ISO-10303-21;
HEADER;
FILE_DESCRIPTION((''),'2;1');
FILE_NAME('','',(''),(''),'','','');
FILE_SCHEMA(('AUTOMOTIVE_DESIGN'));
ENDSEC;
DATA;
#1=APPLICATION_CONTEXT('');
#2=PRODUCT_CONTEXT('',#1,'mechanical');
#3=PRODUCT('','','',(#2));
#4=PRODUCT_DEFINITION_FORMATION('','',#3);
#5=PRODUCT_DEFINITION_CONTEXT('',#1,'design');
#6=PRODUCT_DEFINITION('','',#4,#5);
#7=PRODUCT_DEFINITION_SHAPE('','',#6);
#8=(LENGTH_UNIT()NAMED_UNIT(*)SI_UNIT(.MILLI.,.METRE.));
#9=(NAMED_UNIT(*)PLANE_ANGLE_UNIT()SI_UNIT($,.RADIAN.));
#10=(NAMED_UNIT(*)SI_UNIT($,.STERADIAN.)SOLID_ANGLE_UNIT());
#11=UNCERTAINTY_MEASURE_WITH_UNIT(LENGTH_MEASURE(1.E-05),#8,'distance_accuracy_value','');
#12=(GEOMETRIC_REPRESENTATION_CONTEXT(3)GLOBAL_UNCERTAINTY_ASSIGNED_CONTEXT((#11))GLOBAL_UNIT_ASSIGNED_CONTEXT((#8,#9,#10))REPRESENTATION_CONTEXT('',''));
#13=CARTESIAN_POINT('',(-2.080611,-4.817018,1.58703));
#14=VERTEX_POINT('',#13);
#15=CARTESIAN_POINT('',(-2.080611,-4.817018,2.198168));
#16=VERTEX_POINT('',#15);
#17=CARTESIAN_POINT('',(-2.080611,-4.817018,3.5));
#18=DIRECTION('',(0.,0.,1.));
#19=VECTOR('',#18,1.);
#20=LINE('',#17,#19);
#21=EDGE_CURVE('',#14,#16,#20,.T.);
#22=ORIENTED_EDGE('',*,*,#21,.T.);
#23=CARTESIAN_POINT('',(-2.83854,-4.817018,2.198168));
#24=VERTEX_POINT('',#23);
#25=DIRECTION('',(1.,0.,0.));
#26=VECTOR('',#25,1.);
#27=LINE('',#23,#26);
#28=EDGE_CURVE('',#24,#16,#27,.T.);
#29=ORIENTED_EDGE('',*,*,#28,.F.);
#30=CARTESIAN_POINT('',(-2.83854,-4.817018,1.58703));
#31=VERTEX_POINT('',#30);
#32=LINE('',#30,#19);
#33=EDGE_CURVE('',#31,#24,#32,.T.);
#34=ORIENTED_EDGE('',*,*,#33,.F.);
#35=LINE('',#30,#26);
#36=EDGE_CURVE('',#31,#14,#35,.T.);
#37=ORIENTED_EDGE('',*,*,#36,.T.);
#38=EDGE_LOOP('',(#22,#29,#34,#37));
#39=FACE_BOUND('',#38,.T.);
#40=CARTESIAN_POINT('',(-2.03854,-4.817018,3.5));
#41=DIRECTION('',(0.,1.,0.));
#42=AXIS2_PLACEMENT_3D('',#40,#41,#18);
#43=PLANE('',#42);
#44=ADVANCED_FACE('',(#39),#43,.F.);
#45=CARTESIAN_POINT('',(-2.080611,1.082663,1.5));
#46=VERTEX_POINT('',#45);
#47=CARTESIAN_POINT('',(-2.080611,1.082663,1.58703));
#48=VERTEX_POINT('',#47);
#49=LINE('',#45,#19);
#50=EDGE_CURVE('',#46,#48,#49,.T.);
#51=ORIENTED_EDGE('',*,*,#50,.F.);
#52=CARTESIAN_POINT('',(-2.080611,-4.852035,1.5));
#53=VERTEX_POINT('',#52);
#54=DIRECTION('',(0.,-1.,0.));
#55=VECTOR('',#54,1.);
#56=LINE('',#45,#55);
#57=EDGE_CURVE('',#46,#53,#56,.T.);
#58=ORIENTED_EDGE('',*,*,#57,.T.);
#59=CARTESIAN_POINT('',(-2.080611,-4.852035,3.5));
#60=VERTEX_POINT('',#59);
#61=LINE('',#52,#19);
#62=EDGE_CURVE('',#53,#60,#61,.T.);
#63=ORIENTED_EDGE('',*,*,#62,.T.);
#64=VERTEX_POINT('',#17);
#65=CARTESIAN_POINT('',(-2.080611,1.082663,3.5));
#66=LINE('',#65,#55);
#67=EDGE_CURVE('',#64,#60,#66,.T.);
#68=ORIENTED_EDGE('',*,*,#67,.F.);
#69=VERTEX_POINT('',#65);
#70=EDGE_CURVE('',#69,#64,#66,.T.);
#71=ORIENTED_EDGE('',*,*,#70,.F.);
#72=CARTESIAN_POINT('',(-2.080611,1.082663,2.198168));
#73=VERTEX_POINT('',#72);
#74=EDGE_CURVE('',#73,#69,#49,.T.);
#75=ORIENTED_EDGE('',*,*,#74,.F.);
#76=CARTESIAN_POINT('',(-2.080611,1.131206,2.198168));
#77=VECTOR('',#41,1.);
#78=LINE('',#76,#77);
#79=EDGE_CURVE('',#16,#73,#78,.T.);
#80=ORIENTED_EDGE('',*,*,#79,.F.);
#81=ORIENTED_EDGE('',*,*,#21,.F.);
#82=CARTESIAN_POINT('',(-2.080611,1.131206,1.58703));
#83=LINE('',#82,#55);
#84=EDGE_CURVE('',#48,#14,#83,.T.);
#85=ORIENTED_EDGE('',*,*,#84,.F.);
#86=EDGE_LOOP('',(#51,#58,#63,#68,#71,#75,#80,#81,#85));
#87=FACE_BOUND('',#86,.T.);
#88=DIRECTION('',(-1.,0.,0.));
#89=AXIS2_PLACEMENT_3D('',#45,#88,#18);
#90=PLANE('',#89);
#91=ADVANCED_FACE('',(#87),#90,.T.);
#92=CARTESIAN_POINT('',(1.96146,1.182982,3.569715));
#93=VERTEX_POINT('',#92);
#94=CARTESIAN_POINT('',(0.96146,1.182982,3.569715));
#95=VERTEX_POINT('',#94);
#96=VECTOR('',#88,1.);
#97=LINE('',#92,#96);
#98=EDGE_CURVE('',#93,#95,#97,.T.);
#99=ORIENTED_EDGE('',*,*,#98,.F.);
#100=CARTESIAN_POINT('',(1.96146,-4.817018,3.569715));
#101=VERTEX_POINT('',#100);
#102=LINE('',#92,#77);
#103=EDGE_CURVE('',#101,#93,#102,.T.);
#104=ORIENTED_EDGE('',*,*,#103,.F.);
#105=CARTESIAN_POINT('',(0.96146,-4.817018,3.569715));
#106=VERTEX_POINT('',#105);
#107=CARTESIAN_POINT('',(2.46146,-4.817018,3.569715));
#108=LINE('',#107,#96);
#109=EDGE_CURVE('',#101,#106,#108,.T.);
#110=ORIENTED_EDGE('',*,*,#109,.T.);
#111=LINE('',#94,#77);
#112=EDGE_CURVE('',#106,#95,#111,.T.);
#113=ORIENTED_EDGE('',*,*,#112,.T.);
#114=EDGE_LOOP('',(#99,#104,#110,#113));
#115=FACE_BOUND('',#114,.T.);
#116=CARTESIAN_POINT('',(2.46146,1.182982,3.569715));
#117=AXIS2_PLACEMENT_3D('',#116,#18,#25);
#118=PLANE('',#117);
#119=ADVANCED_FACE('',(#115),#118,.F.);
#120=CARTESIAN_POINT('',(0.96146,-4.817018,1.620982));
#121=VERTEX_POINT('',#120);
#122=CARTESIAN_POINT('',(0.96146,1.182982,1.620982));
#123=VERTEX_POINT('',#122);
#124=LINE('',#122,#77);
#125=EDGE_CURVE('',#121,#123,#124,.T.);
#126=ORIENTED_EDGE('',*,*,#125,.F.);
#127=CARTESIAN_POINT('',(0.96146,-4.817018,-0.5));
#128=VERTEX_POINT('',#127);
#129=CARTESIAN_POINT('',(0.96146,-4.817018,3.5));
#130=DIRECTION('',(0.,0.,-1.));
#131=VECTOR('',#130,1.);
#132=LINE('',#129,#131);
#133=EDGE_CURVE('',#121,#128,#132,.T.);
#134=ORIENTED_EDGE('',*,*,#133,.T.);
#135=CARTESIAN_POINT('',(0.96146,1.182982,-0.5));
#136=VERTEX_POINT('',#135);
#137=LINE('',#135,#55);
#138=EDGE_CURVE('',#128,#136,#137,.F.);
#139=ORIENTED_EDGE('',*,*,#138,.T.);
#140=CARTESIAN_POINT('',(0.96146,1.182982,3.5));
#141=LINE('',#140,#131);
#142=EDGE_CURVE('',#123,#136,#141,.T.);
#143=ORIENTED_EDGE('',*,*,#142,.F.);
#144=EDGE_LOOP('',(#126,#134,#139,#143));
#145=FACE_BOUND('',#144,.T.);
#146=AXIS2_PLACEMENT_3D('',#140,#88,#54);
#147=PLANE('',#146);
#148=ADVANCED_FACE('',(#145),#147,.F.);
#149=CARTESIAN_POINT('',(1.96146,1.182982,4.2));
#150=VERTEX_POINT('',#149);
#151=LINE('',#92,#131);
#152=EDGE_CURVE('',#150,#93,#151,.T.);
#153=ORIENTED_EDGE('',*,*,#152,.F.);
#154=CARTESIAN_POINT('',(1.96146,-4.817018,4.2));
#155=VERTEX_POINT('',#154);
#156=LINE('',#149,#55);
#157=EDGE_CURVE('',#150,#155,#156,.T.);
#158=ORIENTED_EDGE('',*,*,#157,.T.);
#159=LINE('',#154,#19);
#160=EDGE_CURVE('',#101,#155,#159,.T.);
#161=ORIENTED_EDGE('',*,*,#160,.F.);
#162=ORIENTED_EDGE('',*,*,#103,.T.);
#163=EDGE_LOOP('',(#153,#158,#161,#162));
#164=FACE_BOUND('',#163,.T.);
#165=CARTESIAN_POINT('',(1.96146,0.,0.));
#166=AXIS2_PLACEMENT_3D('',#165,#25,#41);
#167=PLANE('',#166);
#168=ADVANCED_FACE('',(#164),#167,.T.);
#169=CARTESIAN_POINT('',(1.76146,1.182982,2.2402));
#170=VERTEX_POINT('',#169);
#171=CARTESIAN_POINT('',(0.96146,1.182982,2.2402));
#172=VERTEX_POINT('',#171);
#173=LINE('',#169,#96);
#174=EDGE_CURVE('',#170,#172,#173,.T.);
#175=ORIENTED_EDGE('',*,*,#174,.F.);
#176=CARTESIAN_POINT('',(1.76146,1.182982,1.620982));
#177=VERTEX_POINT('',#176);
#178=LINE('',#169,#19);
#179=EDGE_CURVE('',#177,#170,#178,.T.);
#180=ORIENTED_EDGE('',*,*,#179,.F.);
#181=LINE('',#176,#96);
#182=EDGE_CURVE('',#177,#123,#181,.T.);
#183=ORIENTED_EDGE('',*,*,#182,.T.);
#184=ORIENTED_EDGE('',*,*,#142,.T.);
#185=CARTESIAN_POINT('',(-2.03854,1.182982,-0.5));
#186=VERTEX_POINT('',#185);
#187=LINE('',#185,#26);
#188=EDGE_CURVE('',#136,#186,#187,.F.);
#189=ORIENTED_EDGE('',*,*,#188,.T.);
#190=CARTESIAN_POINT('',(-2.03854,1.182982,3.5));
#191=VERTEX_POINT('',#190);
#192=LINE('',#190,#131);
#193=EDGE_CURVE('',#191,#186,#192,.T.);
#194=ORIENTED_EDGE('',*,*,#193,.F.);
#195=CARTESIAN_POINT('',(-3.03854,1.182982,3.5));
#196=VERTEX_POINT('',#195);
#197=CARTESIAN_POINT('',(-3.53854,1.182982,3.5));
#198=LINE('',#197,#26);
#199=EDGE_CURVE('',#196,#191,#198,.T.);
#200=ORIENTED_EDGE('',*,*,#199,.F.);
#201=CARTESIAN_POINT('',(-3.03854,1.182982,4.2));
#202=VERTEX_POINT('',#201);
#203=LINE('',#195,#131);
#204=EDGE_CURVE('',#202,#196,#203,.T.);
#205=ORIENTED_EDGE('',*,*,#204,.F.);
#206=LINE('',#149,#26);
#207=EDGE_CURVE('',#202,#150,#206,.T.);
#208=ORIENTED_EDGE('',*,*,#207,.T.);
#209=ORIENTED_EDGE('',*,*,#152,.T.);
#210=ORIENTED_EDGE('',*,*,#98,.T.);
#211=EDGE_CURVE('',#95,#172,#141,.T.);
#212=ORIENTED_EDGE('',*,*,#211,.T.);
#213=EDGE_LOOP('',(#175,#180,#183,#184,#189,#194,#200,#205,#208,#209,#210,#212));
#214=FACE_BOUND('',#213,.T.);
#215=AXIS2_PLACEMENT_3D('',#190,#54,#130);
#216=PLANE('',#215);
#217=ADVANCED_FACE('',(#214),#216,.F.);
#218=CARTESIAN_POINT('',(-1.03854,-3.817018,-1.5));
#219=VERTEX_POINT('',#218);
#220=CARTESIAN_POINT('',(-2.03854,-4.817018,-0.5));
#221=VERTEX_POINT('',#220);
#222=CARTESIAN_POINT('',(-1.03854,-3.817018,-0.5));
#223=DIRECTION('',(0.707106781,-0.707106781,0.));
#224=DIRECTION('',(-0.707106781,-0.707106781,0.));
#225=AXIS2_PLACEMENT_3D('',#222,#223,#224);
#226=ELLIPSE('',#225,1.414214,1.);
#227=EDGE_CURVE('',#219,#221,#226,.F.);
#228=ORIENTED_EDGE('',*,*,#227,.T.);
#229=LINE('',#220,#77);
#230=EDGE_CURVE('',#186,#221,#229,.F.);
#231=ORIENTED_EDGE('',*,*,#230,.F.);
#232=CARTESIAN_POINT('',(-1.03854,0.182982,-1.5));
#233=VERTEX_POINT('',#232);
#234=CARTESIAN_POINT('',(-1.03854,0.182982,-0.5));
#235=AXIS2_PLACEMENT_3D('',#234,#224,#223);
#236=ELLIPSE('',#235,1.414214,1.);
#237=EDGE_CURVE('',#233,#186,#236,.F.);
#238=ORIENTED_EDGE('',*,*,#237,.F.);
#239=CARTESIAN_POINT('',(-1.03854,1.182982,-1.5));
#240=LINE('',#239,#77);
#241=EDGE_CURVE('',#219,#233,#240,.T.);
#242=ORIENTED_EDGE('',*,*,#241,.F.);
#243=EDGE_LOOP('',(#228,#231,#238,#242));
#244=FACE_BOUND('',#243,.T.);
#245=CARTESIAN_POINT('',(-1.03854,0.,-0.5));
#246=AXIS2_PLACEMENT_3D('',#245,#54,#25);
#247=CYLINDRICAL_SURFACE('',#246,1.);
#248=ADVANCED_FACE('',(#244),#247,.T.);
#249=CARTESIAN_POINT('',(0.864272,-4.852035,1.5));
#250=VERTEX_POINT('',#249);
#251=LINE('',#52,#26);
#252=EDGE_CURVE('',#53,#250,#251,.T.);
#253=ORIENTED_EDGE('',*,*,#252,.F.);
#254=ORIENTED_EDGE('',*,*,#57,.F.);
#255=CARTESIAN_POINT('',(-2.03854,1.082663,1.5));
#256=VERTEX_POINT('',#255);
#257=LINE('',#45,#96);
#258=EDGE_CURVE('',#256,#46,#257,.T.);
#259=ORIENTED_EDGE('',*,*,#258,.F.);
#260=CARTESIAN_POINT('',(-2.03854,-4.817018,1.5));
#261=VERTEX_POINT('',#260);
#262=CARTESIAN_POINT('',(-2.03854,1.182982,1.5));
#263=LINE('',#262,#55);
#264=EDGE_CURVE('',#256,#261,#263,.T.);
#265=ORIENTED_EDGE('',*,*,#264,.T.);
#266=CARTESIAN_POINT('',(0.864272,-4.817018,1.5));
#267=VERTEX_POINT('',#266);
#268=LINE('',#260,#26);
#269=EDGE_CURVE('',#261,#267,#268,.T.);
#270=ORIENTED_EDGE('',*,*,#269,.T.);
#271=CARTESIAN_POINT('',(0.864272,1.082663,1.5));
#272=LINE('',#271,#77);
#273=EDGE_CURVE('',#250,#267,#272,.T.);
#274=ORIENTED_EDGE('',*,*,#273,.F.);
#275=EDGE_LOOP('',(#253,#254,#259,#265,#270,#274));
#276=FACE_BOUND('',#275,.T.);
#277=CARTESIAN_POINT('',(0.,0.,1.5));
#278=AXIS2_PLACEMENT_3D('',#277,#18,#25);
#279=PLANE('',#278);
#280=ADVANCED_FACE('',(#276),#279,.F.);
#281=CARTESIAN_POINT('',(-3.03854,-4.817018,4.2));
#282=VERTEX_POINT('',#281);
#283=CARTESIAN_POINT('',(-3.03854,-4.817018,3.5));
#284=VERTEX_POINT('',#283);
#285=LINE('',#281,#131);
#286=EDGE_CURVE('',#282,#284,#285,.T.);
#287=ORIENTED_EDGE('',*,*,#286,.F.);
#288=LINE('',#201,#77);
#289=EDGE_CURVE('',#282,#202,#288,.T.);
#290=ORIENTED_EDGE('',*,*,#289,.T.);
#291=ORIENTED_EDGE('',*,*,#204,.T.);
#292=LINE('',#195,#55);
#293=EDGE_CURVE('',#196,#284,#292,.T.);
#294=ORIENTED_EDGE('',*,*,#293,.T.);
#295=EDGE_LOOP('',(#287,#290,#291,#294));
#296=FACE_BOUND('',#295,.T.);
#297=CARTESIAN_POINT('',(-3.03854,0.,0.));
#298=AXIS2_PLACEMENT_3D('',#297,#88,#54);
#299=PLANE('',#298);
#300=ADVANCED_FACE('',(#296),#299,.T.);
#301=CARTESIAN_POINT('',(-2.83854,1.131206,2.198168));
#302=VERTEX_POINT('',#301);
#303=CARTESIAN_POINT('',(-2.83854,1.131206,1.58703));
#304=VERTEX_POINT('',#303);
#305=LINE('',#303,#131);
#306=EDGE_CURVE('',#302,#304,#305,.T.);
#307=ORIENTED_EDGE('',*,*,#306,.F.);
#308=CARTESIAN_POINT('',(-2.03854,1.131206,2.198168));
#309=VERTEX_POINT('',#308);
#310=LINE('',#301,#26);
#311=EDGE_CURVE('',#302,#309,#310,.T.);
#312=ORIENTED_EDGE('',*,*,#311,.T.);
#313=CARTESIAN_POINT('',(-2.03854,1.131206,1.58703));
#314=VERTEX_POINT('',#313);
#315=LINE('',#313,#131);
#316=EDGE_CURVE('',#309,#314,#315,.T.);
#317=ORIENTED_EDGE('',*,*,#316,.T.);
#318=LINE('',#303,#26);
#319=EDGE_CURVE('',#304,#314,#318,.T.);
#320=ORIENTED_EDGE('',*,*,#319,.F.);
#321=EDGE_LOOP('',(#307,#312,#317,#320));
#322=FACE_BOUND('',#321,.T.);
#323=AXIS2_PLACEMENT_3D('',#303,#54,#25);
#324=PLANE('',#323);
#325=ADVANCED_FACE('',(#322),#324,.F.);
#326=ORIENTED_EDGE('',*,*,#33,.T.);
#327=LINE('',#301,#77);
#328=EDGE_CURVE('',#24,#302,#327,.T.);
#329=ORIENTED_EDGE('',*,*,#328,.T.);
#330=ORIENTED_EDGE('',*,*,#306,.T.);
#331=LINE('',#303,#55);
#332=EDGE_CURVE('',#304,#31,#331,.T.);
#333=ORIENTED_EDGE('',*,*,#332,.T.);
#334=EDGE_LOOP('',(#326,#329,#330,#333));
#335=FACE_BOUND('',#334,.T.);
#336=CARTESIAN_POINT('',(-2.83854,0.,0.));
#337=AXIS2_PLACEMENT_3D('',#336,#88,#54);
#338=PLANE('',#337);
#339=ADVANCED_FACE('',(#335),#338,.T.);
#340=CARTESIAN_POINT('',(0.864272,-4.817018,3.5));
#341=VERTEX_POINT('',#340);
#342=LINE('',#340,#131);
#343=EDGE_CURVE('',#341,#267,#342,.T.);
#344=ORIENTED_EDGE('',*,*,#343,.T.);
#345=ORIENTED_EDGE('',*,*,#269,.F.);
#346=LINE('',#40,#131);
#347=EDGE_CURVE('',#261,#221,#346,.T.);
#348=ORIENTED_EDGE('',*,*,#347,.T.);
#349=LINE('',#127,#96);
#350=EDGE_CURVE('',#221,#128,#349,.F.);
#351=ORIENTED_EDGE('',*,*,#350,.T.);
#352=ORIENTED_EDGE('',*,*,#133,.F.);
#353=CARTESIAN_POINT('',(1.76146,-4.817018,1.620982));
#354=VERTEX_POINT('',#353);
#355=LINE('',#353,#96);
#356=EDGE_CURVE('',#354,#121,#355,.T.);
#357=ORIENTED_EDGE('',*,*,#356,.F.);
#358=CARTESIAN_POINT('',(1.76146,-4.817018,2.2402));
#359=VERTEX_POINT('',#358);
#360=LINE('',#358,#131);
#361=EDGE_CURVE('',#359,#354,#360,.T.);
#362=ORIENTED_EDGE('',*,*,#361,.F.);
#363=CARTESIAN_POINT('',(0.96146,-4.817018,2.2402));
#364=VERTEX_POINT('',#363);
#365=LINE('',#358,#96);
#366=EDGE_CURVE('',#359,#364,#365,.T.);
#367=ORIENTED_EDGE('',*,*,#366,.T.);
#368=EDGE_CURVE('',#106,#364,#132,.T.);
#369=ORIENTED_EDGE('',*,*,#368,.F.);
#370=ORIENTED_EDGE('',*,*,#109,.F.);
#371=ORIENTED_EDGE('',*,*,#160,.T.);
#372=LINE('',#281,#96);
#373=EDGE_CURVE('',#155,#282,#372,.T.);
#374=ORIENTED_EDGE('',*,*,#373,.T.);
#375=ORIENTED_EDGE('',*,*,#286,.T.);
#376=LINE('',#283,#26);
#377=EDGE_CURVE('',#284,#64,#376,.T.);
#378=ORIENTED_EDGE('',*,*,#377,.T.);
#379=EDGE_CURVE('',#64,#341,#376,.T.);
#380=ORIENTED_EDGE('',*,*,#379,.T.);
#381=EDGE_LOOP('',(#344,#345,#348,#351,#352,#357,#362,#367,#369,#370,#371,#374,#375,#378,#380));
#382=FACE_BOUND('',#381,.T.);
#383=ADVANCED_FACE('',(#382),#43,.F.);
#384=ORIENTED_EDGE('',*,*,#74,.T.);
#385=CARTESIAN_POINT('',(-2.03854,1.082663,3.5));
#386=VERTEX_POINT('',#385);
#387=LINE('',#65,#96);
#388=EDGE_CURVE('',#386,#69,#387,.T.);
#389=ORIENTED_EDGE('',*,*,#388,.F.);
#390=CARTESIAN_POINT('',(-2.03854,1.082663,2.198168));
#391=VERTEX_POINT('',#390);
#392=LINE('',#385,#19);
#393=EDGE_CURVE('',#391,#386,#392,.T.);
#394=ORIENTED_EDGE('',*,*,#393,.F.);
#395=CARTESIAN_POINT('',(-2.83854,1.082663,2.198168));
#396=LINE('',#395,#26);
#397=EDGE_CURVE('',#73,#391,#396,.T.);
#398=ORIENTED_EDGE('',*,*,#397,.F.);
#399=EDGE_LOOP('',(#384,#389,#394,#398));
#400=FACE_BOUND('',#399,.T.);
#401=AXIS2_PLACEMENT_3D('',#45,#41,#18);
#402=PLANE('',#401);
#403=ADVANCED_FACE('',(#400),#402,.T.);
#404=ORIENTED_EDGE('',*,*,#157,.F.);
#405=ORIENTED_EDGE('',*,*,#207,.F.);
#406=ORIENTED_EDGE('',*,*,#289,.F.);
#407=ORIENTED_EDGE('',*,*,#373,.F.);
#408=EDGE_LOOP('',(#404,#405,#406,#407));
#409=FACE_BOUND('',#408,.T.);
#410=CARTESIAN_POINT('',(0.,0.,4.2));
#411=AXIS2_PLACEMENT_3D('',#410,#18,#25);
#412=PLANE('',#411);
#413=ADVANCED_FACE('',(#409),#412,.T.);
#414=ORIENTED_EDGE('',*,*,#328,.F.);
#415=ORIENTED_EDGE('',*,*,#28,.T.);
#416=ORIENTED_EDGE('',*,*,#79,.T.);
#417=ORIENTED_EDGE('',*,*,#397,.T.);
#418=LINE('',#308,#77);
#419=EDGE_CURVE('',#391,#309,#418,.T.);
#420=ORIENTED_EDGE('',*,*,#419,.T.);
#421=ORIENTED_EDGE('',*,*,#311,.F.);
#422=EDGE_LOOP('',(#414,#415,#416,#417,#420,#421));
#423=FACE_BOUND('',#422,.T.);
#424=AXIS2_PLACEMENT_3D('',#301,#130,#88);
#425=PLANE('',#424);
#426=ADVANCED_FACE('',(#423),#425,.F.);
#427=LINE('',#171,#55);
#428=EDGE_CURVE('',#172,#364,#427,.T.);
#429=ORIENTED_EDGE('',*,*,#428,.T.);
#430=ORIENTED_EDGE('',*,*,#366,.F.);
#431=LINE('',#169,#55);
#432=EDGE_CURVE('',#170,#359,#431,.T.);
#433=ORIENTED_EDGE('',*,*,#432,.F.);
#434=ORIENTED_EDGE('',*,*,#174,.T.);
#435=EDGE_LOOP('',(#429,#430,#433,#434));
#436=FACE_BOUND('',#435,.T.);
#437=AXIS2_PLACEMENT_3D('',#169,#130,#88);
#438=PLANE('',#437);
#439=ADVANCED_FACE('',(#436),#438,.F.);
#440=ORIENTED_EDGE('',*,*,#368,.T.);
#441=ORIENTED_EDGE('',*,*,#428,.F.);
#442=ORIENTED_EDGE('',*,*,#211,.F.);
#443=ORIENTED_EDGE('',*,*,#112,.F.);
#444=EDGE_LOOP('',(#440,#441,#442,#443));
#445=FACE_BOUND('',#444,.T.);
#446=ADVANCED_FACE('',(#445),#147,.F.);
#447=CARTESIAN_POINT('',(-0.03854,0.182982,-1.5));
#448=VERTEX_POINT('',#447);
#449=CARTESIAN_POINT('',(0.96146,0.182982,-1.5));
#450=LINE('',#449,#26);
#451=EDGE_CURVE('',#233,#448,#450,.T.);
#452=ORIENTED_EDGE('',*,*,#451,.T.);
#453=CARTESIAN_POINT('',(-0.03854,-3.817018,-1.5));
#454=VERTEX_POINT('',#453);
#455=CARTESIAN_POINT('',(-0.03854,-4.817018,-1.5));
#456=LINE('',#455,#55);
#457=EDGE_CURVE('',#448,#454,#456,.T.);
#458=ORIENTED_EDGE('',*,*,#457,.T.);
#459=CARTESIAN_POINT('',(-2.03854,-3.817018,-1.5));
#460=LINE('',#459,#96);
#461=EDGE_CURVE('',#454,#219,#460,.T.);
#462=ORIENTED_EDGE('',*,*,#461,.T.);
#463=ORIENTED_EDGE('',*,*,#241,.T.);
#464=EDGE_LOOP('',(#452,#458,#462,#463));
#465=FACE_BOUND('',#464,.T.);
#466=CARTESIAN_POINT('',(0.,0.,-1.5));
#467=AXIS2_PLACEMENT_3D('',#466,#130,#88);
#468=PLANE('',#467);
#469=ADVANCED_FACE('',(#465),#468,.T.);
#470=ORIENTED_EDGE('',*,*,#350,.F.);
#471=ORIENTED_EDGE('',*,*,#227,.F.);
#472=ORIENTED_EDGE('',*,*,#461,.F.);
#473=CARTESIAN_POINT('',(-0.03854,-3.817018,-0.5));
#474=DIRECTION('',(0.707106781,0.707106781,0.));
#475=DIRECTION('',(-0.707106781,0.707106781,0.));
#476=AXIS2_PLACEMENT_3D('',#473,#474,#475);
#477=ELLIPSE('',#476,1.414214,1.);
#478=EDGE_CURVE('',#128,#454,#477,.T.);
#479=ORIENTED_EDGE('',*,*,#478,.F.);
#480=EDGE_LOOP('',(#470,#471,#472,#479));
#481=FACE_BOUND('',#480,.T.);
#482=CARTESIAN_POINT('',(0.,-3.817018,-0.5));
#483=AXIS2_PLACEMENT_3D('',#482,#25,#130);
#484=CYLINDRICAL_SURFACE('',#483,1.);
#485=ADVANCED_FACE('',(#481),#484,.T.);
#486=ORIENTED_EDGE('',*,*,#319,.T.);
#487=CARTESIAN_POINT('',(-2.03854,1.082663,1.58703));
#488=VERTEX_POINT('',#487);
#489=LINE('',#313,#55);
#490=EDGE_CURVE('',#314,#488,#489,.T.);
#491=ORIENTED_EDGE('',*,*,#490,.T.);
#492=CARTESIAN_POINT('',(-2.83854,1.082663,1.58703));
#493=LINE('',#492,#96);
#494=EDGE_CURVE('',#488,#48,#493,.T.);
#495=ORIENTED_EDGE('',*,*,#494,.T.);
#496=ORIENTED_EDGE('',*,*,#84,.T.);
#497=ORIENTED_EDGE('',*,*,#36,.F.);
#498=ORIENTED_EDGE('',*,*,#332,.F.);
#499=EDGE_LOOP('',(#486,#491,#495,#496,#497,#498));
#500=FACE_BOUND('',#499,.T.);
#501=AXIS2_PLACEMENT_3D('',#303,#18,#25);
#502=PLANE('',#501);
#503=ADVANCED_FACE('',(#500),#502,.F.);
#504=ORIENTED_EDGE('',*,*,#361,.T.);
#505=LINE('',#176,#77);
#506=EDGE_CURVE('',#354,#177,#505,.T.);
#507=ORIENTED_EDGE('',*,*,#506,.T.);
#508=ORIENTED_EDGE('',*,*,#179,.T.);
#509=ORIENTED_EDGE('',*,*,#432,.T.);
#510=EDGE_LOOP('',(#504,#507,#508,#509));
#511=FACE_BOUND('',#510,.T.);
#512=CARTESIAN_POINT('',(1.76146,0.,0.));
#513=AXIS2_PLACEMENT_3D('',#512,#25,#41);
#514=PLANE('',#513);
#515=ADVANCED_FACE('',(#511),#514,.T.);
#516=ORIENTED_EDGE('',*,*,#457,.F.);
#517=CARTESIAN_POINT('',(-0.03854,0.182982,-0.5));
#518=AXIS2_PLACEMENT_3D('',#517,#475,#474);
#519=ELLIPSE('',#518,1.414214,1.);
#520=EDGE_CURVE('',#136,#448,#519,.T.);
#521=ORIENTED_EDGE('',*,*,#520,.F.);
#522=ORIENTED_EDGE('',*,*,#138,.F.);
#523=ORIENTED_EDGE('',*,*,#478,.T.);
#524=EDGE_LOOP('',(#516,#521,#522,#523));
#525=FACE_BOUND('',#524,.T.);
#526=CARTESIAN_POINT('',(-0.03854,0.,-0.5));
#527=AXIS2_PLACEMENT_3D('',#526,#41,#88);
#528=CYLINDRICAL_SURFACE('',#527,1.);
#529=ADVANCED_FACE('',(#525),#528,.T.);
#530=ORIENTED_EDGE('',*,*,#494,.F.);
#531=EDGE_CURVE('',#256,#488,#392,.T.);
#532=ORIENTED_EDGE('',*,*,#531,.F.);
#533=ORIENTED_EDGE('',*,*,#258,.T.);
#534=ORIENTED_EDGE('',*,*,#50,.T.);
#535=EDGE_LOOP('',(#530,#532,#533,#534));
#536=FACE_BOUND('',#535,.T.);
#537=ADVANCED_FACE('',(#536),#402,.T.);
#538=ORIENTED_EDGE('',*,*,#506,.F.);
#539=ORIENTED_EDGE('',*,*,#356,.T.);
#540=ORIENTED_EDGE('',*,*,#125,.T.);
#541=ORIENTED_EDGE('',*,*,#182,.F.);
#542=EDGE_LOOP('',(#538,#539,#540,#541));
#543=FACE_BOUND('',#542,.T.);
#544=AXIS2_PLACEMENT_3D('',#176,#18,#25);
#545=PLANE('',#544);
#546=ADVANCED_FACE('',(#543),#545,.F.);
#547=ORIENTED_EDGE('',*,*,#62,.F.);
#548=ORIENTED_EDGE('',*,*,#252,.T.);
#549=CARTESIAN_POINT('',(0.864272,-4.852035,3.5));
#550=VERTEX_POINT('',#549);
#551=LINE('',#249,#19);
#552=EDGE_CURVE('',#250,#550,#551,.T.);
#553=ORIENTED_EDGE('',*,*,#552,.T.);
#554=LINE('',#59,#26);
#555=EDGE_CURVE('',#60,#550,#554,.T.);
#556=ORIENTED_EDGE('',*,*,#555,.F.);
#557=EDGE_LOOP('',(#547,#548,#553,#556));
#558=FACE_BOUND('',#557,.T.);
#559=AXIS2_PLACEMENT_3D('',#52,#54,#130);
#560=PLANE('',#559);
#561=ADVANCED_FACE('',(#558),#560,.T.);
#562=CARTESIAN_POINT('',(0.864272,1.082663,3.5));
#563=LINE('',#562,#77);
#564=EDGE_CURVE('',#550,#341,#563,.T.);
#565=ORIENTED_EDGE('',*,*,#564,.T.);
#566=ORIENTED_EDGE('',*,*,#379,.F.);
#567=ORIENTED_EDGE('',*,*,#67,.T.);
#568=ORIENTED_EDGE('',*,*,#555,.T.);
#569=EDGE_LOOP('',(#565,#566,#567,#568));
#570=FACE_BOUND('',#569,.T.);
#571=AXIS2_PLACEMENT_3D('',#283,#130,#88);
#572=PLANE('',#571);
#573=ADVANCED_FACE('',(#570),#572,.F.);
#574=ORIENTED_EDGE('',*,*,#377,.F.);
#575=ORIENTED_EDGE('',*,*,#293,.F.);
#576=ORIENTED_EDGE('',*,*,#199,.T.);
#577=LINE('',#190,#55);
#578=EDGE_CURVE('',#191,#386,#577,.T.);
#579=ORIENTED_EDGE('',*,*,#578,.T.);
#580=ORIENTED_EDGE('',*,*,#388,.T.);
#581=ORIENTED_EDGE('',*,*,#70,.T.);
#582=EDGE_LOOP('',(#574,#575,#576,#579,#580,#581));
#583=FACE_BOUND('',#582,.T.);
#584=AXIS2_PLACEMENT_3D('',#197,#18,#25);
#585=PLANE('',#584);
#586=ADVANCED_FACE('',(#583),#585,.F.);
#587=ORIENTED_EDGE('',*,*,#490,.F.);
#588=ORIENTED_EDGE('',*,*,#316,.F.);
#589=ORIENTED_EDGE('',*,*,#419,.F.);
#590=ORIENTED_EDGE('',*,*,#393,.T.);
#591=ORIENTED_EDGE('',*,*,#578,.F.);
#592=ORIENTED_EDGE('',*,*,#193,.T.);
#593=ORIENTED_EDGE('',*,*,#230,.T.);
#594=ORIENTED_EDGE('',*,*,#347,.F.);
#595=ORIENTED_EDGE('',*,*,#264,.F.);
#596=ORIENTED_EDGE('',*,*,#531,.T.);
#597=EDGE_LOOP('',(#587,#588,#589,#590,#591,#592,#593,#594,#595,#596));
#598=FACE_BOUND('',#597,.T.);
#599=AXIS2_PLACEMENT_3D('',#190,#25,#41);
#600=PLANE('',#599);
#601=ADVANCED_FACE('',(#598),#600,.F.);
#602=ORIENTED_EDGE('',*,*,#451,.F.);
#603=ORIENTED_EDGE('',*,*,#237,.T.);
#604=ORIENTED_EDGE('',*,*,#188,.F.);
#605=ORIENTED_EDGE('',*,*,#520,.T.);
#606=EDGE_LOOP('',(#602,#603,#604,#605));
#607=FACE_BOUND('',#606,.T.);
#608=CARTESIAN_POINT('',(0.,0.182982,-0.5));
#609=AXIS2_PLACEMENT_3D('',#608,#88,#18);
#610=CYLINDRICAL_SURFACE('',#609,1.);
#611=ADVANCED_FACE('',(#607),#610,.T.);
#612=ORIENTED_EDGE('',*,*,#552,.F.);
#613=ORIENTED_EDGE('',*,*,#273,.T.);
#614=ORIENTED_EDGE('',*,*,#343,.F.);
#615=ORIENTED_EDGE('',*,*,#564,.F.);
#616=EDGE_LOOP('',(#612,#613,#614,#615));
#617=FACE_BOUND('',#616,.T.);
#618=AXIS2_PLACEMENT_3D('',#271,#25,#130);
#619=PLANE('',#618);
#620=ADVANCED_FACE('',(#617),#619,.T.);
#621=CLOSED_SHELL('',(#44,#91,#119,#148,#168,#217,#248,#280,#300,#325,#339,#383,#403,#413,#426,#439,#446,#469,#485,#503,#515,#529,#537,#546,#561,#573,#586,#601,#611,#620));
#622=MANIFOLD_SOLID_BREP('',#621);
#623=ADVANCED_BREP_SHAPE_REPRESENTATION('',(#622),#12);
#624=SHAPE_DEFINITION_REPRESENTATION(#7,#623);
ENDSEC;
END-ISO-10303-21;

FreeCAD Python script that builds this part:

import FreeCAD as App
import Part
import Sketcher

V = App.Vector
Q = App.Units.Quantity


def edges_at(feature, points):
    """Names of the edges that pass closest to the given points."""
    edges = feature.Shape.Edges
    near = lambda p: min(range(len(edges)), key=lambda i: edges[i].distToShape(Part.Vertex(*p))[0])
    return sorted({f"Edge{near(p) + 1}" for p in points})

doc = App.newDocument("Part")
body = doc.addObject("PartDesign::Body", "Body")

sketch1 = body.newObject("Sketcher::SketchObject", "Sketch")
sketch1.AttachmentSupport = (doc.getObject("XY_Plane"), [""])
sketch1.MapMode = "FlatFace"
sketch1.addGeometry(Part.LineSegment(V(-2, 1.2, 0), V(-2, -4.8, 0)), False)
sketch1.addGeometry(Part.LineSegment(V(-2, -4.8, 0), V(1, -4.8, 0)), False)
sketch1.addGeometry(Part.LineSegment(V(1, -4.8, 0), V(1, 1.2, 0)), False)
sketch1.addGeometry(Part.LineSegment(V(1, 1.2, 0), V(-2, 1.2, 0)), False)
sketch1.addConstraint(Sketcher.Constraint("Coincident", 0, 2, 1, 1))
sketch1.addConstraint(Sketcher.Constraint("Coincident", 1, 2, 2, 1))
sketch1.addConstraint(Sketcher.Constraint("Coincident", 2, 2, 3, 1))
sketch1.addConstraint(Sketcher.Constraint("Coincident", 3, 2, 0, 1))
sketch1.addConstraint(Sketcher.Constraint("Vertical", 0))
sketch1.addConstraint(Sketcher.Constraint("Horizontal", 1))
sketch1.addConstraint(Sketcher.Constraint("Vertical", 2))
sketch1.addConstraint(Sketcher.Constraint("Horizontal", 3))
sketch1.addConstraint(Sketcher.Constraint("DistanceX", 1, 1, 1, 2, Q("3 mm")))
sketch1.addConstraint(Sketcher.Constraint("DistanceY", 0, 2, 0, 1, Q("6 mm")))
sketch1.addConstraint(Sketcher.Constraint("DistanceX", 0, 2, -1, 1, Q("2.03854 mm")))
sketch1.addConstraint(Sketcher.Constraint("DistanceY", 0, 2, -1, 1, Q("4.817018 mm")))
pad1 = body.newObject("PartDesign::Pad", "Pad")
pad1.Profile = sketch1
pad1.Length = 3.5

sketch2 = body.newObject("Sketcher::SketchObject", "Sketch001")
sketch2.AttachmentSupport = (doc.getObject("XY_Plane"), [""])
sketch2.MapMode = "FlatFace"
sketch2.AttachmentOffset = App.Placement(V(0, 0, 3.5), App.Rotation())
sketch2.addGeometry(Part.LineSegment(V(-3.8, 2.9, 0), V(-3.8, -6.6, 0)), False)
sketch2.addGeometry(Part.LineSegment(V(-3.8, -6.6, 0), V(2.7, -6.6, 0)), False)
sketch2.addGeometry(Part.LineSegment(V(2.7, -6.6, 0), V(2.7, 2.9, 0)), False)
sketch2.addGeometry(Part.LineSegment(V(2.7, 2.9, 0), V(-3.8, 2.9, 0)), False)
sketch2.addGeometry(Part.LineSegment(V(0.2, -3.3, 0), V(-1.2, -3.3, 0)), False)
sketch2.addGeometry(Part.LineSegment(V(-1.2, -3.3, 0), V(-1.2, -0.2, 0)), False)
sketch2.addGeometry(Part.LineSegment(V(-1.2, -0.2, 0), V(0.2, -0.2, 0)), False)
sketch2.addGeometry(Part.LineSegment(V(0.2, -0.2, 0), V(0.2, -3.3, 0)), False)
sketch2.addConstraint(Sketcher.Constraint("Coincident", 0, 2, 1, 1))
sketch2.addConstraint(Sketcher.Constraint("Coincident", 1, 2, 2, 1))
sketch2.addConstraint(Sketcher.Constraint("Coincident", 2, 2, 3, 1))
sketch2.addConstraint(Sketcher.Constraint("Coincident", 3, 2, 0, 1))
sketch2.addConstraint(Sketcher.Constraint("Coincident", 4, 2, 5, 1))
sketch2.addConstraint(Sketcher.Constraint("Coincident", 5, 2, 6, 1))
sketch2.addConstraint(Sketcher.Constraint("Coincident", 6, 2, 7, 1))
sketch2.addConstraint(Sketcher.Constraint("Coincident", 7, 2, 4, 1))
sketch2.addConstraint(Sketcher.Constraint("Vertical", 0))
sketch2.addConstraint(Sketcher.Constraint("Horizontal", 1))
sketch2.addConstraint(Sketcher.Constraint("Vertical", 2))
sketch2.addConstraint(Sketcher.Constraint("Horizontal", 3))
sketch2.addConstraint(Sketcher.Constraint("Horizontal", 4))
sketch2.addConstraint(Sketcher.Constraint("Vertical", 5))
sketch2.addConstraint(Sketcher.Constraint("Horizontal", 6))
sketch2.addConstraint(Sketcher.Constraint("Vertical", 7))
sketch2.addConstraint(Sketcher.Constraint("DistanceX", 1, 1, 1, 2, Q("6.514 mm")))
sketch2.addConstraint(Sketcher.Constraint("DistanceY", 0, 2, 0, 1, Q("9.514 mm")))
sketch2.addConstraint(Sketcher.Constraint("DistanceY", -1, 1, 2, 2, Q("2.94 mm")))
sketch2.addConstraint(Sketcher.Constraint("DistanceX", 0, 2, -1, 1, Q("3.796 mm")))
sketch2.addConstraint(Sketcher.Constraint("DistanceX", 4, 2, 4, 1, Q("1.417407 mm")))
sketch2.addConstraint(Sketcher.Constraint("DistanceY", 5, 1, 5, 2, Q("3.080498 mm")))
sketch2.addConstraint(Sketcher.Constraint("DistanceY", 5, 2, -1, 1, Q("0.196449 mm")))
sketch2.addConstraint(Sketcher.Constraint("DistanceX", 4, 2, -1, 1, Q("1.239493 mm")))
pocket1 = body.newObject("PartDesign::Pocket", "Pocket")
pocket1.Profile = sketch2
pocket1.Length = 0.8

sketch3 = body.newObject("Sketcher::SketchObject", "Sketch002")
sketch3.AttachmentSupport = (doc.getObject("XY_Plane"), [""])
sketch3.MapMode = "FlatFace"
sketch3.addGeometry(Part.LineSegment(V(1, 1.2, 0), V(1, -4.8, 0)), False)
sketch3.addGeometry(Part.LineSegment(V(1, -4.8, 0), V(-2, -4.8, 0)), False)
sketch3.addGeometry(Part.LineSegment(V(-2, -4.8, 0), V(-2, 1.2, 0)), False)
sketch3.addGeometry(Part.LineSegment(V(-2, 1.2, 0), V(1, 1.2, 0)), False)
sketch3.addConstraint(Sketcher.Constraint("Coincident", 0, 2, 1, 1))
sketch3.addConstraint(Sketcher.Constraint("Coincident", 1, 2, 2, 1))
sketch3.addConstraint(Sketcher.Constraint("Coincident", 2, 2, 3, 1))
sketch3.addConstraint(Sketcher.Constraint("Coincident", 3, 2, 0, 1))
sketch3.addConstraint(Sketcher.Constraint("Vertical", 0))
sketch3.addConstraint(Sketcher.Constraint("Horizontal", 1))
sketch3.addConstraint(Sketcher.Constraint("Vertical", 2))
sketch3.addConstraint(Sketcher.Constraint("Horizontal", 3))
sketch3.addConstraint(Sketcher.Constraint("DistanceX", 1, 2, 1, 1, Q("3 mm")))
sketch3.addConstraint(Sketcher.Constraint("DistanceY", 0, 2, 0, 1, Q("6 mm")))
sketch3.addConstraint(Sketcher.Constraint("DistanceX", -1, 1, 0, 2, Q("0.96146 mm")))
sketch3.addConstraint(Sketcher.Constraint("DistanceY", 0, 2, -1, 1, Q("4.817018 mm")))
pad2 = body.newObject("PartDesign::Pad", "Pad001")
pad2.Profile = sketch3
pad2.Length = 1.5
pad2.Reversed = True
doc.recompute()

fillet = body.newObject("PartDesign::Fillet", "Fillet")
fillet.Base = (pad2, edges_at(pad2, [
    (0.961, -1.817, -1.5),
    (-0.539, -4.817, -1.5),
    (-2.039, -1.817, -1.5),
    (-0.539, 1.183, -1.5),
]))
fillet.Radius = 1

sketch4 = body.newObject("Sketcher::SketchObject", "Sketch003")
sketch4.AttachmentSupport = (doc.getObject("YZ_Plane"), [""])
sketch4.MapMode = "FlatFace"
sketch4.AttachmentOffset = App.Placement(V(0, 0, -2.03854), App.Rotation())
sketch4.addGeometry(Part.LineSegment(V(1.1, 1.6, 0), V(-4.8, 1.6, 0)), False)
sketch4.addGeometry(Part.LineSegment(V(-4.8, 1.6, 0), V(-4.8, 2.2, 0)), False)
sketch4.addGeometry(Part.LineSegment(V(-4.8, 2.2, 0), V(1.1, 2.2, 0)), False)
sketch4.addGeometry(Part.LineSegment(V(1.1, 2.2, 0), V(1.1, 1.6, 0)), False)
sketch4.addConstraint(Sketcher.Constraint("Coincident", 0, 2, 1, 1))
sketch4.addConstraint(Sketcher.Constraint("Coincident", 1, 2, 2, 1))
sketch4.addConstraint(Sketcher.Constraint("Coincident", 2, 2, 3, 1))
sketch4.addConstraint(Sketcher.Constraint("Coincident", 3, 2, 0, 1))
sketch4.addConstraint(Sketcher.Constraint("Horizontal", 0))
sketch4.addConstraint(Sketcher.Constraint("Vertical", 1))
sketch4.addConstraint(Sketcher.Constraint("Horizontal", 2))
sketch4.addConstraint(Sketcher.Constraint("Vertical", 3))
sketch4.addConstraint(Sketcher.Constraint("DistanceY", 1, 1, 1, 2, Q("0.611139 mm")))
sketch4.addConstraint(Sketcher.Constraint("DistanceX", 0, 2, 0, 1, Q("5.948224 mm")))
sketch4.addConstraint(Sketcher.Constraint("DistanceY", -1, 1, 0, 2, Q("1.58703 mm")))
sketch4.addConstraint(Sketcher.Constraint("DistanceX", 0, 2, -1, 1, Q("4.817018 mm")))
pad3 = body.newObject("PartDesign::Pad", "Pad002")
pad3.Profile = sketch4
pad3.Length = 0.8
pad3.Reversed = True

sketch5 = body.newObject("Sketcher::SketchObject", "Sketch004")
sketch5.AttachmentSupport = (doc.getObject("YZ_Plane"), [""])
sketch5.MapMode = "FlatFace"
sketch5.AttachmentOffset = App.Placement(V(0, 0, 0.96146), App.Rotation())
sketch5.addGeometry(Part.LineSegment(V(1.2, 2.2, 0), V(-4.8, 2.2, 0)), False)
sketch5.addGeometry(Part.LineSegment(V(-4.8, 2.2, 0), V(-4.8, 1.6, 0)), False)
sketch5.addGeometry(Part.LineSegment(V(-4.8, 1.6, 0), V(1.2, 1.6, 0)), False)
sketch5.addGeometry(Part.LineSegment(V(1.2, 1.6, 0), V(1.2, 2.2, 0)), False)
sketch5.addConstraint(Sketcher.Constraint("Coincident", 0, 2, 1, 1))
sketch5.addConstraint(Sketcher.Constraint("Coincident", 1, 2, 2, 1))
sketch5.addConstraint(Sketcher.Constraint("Coincident", 2, 2, 3, 1))
sketch5.addConstraint(Sketcher.Constraint("Coincident", 3, 2, 0, 1))
sketch5.addConstraint(Sketcher.Constraint("Horizontal", 0))
sketch5.addConstraint(Sketcher.Constraint("Vertical", 1))
sketch5.addConstraint(Sketcher.Constraint("Horizontal", 2))
sketch5.addConstraint(Sketcher.Constraint("Vertical", 3))
sketch5.addConstraint(Sketcher.Constraint("DistanceX", 0, 2, 0, 1, Q("6 mm")))
sketch5.addConstraint(Sketcher.Constraint("DistanceY", -1, 1, 0, 2, Q("2.2402 mm")))
sketch5.addConstraint(Sketcher.Constraint("DistanceY", 1, 2, 1, 1, Q("0.619218 mm")))
sketch5.addConstraint(Sketcher.Constraint("DistanceX", 0, 2, -1, 1, Q("4.817018 mm")))
pad4 = body.newObject("PartDesign::Pad", "Pad003")
pad4.Profile = sketch5
pad4.Length = 0.8

sketch6 = body.newObject("Sketcher::SketchObject", "Sketch005")
sketch6.AttachmentSupport = (doc.getObject("XY_Plane"), [""])
sketch6.MapMode = "FlatFace"
sketch6.AttachmentOffset = App.Placement(V(0, 0, 3.5), App.Rotation())
sketch6.addGeometry(Part.LineSegment(V(-2.1, 1.1, 0), V(-2.1, -4.9, 0)), False)
sketch6.addGeometry(Part.LineSegment(V(-2.1, -4.9, 0), V(0.9, -4.9, 0)), False)
sketch6.addGeometry(Part.LineSegment(V(0.9, -4.9, 0), V(0.9, 1.1, 0)), False)
sketch6.addGeometry(Part.LineSegment(V(0.9, 1.1, 0), V(-2.1, 1.1, 0)), False)
sketch6.addConstraint(Sketcher.Constraint("Coincident", 0, 2, 1, 1))
sketch6.addConstraint(Sketcher.Constraint("Coincident", 1, 2, 2, 1))
sketch6.addConstraint(Sketcher.Constraint("Coincident", 2, 2, 3, 1))
sketch6.addConstraint(Sketcher.Constraint("Coincident", 3, 2, 0, 1))
sketch6.addConstraint(Sketcher.Constraint("Vertical", 0))
sketch6.addConstraint(Sketcher.Constraint("Horizontal", 1))
sketch6.addConstraint(Sketcher.Constraint("Vertical", 2))
sketch6.addConstraint(Sketcher.Constraint("Horizontal", 3))
sketch6.addConstraint(Sketcher.Constraint("DistanceY", 0, 2, 0, 1, Q("5.934699 mm")))
sketch6.addConstraint(Sketcher.Constraint("DistanceX", 1, 1, 1, 2, Q("2.944884 mm")))
sketch6.addConstraint(Sketcher.Constraint("DistanceX", 0, 2, -1, 1, Q("2.080611 mm")))
sketch6.addConstraint(Sketcher.Constraint("DistanceY", 0, 2, -1, 1, Q("4.852035 mm")))
pad5 = body.newObject("PartDesign::Pad", "Pad004")
pad5.Profile = sketch6
pad5.Length = 2
pad5.Reversed = True

sketch7 = body.newObject("Sketcher::SketchObject", "Sketch006")
sketch7.AttachmentSupport = (doc.getObject("XY_Plane"), [""])
sketch7.MapMode = "FlatFace"
sketch7.AttachmentOffset = App.Placement(V(0, 0, 2.7), App.Rotation())
sketch7.addGeometry(Part.LineSegment(V(-2, 1.2, 0), V(-2, -4.8, 0)), False)
sketch7.addGeometry(Part.LineSegment(V(-2, -4.8, 0), V(1, -4.8, 0)), False)
sketch7.addGeometry(Part.LineSegment(V(1, -4.8, 0), V(1, 1.2, 0)), False)
sketch7.addGeometry(Part.LineSegment(V(1, 1.2, 0), V(-2, 1.2, 0)), False)
sketch7.addConstraint(Sketcher.Constraint("Coincident", 0, 2, 1, 1))
sketch7.addConstraint(Sketcher.Constraint("Coincident", 1, 2, 2, 1))
sketch7.addConstraint(Sketcher.Constraint("Coincident", 2, 2, 3, 1))
sketch7.addConstraint(Sketcher.Constraint("Coincident", 3, 2, 0, 1))
sketch7.addConstraint(Sketcher.Constraint("Vertical", 0))
sketch7.addConstraint(Sketcher.Constraint("Horizontal", 1))
sketch7.addConstraint(Sketcher.Constraint("Vertical", 2))
sketch7.addConstraint(Sketcher.Constraint("Horizontal", 3))
sketch7.addConstraint(Sketcher.Constraint("DistanceX", 1, 1, 1, 2, Q("3 mm")))
sketch7.addConstraint(Sketcher.Constraint("DistanceY", 0, 2, 0, 1, Q("6 mm")))
sketch7.addConstraint(Sketcher.Constraint("DistanceX", 0, 2, -1, 1, Q("2.03854 mm")))
sketch7.addConstraint(Sketcher.Constraint("DistanceY", 0, 2, -1, 1, Q("4.817018 mm")))
pad6 = body.newObject("PartDesign::Pad", "Pad005")
pad6.Profile = sketch7
pad6.Length = 1.5

sketch8 = body.newObject("Sketcher::SketchObject", "Sketch007")
sketch8.AttachmentSupport = (doc.getObject("YZ_Plane"), [""])
sketch8.MapMode = "FlatFace"
sketch8.AttachmentOffset = App.Placement(V(0, 0, -2.03854), App.Rotation())
sketch8.addGeometry(Part.LineSegment(V(1.2, 3.5, 0), V(-4.8, 3.5, 0)), False)
sketch8.addGeometry(Part.LineSegment(V(-4.8, 3.5, 0), V(-4.8, 4.2, 0)), False)
sketch8.addGeometry(Part.LineSegment(V(-4.8, 4.2, 0), V(1.2, 4.2, 0)), False)
sketch8.addGeometry(Part.LineSegment(V(1.2, 4.2, 0), V(1.2, 3.5, 0)), False)
sketch8.addConstraint(Sketcher.Constraint("Coincident", 0, 2, 1, 1))
sketch8.addConstraint(Sketcher.Constraint("Coincident", 1, 2, 2, 1))
sketch8.addConstraint(Sketcher.Constraint("Coincident", 2, 2, 3, 1))
sketch8.addConstraint(Sketcher.Constraint("Coincident", 3, 2, 0, 1))
sketch8.addConstraint(Sketcher.Constraint("Horizontal", 0))
sketch8.addConstraint(Sketcher.Constraint("Vertical", 1))
sketch8.addConstraint(Sketcher.Constraint("Horizontal", 2))
sketch8.addConstraint(Sketcher.Constraint("Vertical", 3))
sketch8.addConstraint(Sketcher.Constraint("DistanceX", 0, 2, 0, 1, Q("6 mm")))
sketch8.addConstraint(Sketcher.Constraint("DistanceY", 1, 1, 1, 2, Q("0.7 mm")))
sketch8.addConstraint(Sketcher.Constraint("DistanceY", -1, 1, 0, 2, Q("3.5 mm")))
sketch8.addConstraint(Sketcher.Constraint("DistanceX", 0, 2, -1, 1, Q("4.817018 mm")))
pad7 = body.newObject("PartDesign::Pad", "Pad006")
pad7.Profile = sketch8
pad7.Length = 1.5
pad7.Reversed = True

sketch9 = body.newObject("Sketcher::SketchObject", "Sketch008")
sketch9.AttachmentSupport = (doc.getObject("YZ_Plane"), [""])
sketch9.MapMode = "FlatFace"
sketch9.AttachmentOffset = App.Placement(V(0, 0, 0.96146), App.Rotation())
sketch9.addGeometry(Part.LineSegment(V(1.2, 4.2, 0), V(-4.8, 4.2, 0)), False)
sketch9.addGeometry(Part.LineSegment(V(-4.8, 4.2, 0), V(-4.8, 3.6, 0)), False)
sketch9.addGeometry(Part.LineSegment(V(-4.8, 3.6, 0), V(1.2, 3.6, 0)), False)
sketch9.addGeometry(Part.LineSegment(V(1.2, 3.6, 0), V(1.2, 4.2, 0)), False)
sketch9.addConstraint(Sketcher.Constraint("Coincident", 0, 2, 1, 1))
sketch9.addConstraint(Sketcher.Constraint("Coincident", 1, 2, 2, 1))
sketch9.addConstraint(Sketcher.Constraint("Coincident", 2, 2, 3, 1))
sketch9.addConstraint(Sketcher.Constraint("Coincident", 3, 2, 0, 1))
sketch9.addConstraint(Sketcher.Constraint("Horizontal", 0))
sketch9.addConstraint(Sketcher.Constraint("Vertical", 1))
sketch9.addConstraint(Sketcher.Constraint("Horizontal", 2))
sketch9.addConstraint(Sketcher.Constraint("Vertical", 3))
sketch9.addConstraint(Sketcher.Constraint("DistanceX", 0, 2, 0, 1, Q("6 mm")))
sketch9.addConstraint(Sketcher.Constraint("DistanceY", -1, 1, 0, 2, Q("4.2 mm")))
sketch9.addConstraint(Sketcher.Constraint("DistanceY", 1, 2, 1, 1, Q("0.630285 mm")))
sketch9.addConstraint(Sketcher.Constraint("DistanceX", 0, 2, -1, 1, Q("4.817018 mm")))
pad8 = body.newObject("PartDesign::Pad", "Pad007")
pad8.Profile = sketch9
pad8.Length = 1.5

sketch10 = body.newObject("Sketcher::SketchObject", "Sketch009")
sketch10.AttachmentSupport = (doc.getObject("YZ_Plane"), [""])
sketch10.MapMode = "FlatFace"
sketch10.AttachmentOffset = App.Placement(V(0, 0, 2.46146), App.Rotation())
sketch10.addGeometry(Part.LineSegment(V(1.2, 4.2, 0), V(-4.8, 4.2, 0)), False)
sketch10.addGeometry(Part.LineSegment(V(-4.8, 4.2, 0), V(-4.8, 3.6, 0)), False)
sketch10.addGeometry(Part.LineSegment(V(-4.8, 3.6, 0), V(1.2, 3.6, 0)), False)
sketch10.addGeometry(Part.LineSegment(V(1.2, 3.6, 0), V(1.2, 4.2, 0)), False)
sketch10.addConstraint(Sketcher.Constraint("Coincident", 0, 2, 1, 1))
sketch10.addConstraint(Sketcher.Constraint("Coincident", 1, 2, 2, 1))
sketch10.addConstraint(Sketcher.Constraint("Coincident", 2, 2, 3, 1))
sketch10.addConstraint(Sketcher.Constraint("Coincident", 3, 2, 0, 1))
sketch10.addConstraint(Sketcher.Constraint("Horizontal", 0))
sketch10.addConstraint(Sketcher.Constraint("Vertical", 1))
sketch10.addConstraint(Sketcher.Constraint("Horizontal", 2))
sketch10.addConstraint(Sketcher.Constraint("Vertical", 3))
sketch10.addConstraint(Sketcher.Constraint("DistanceX", 0, 2, 0, 1, Q("6 mm")))
sketch10.addConstraint(Sketcher.Constraint("DistanceY", -1, 1, 0, 2, Q("4.2 mm")))
sketch10.addConstraint(Sketcher.Constraint("DistanceY", 1, 2, 1, 1, Q("0.630285 mm")))
sketch10.addConstraint(Sketcher.Constraint("DistanceX", 0, 2, -1, 1, Q("4.817018 mm")))
pocket2 = body.newObject("PartDesign::Pocket", "Pocket001")
pocket2.Profile = sketch10
pocket2.Length = 0.5

sketch11 = body.newObject("Sketcher::SketchObject", "Sketch010")
sketch11.AttachmentSupport = (doc.getObject("YZ_Plane"), [""])
sketch11.MapMode = "FlatFace"
sketch11.AttachmentOffset = App.Placement(V(0, 0, -3.53854), App.Rotation())
sketch11.addGeometry(Part.LineSegment(V(1.2, 3.5, 0), V(-4.8, 3.5, 0)), False)
sketch11.addGeometry(Part.LineSegment(V(-4.8, 3.5, 0), V(-4.8, 4.2, 0)), False)
sketch11.addGeometry(Part.LineSegment(V(-4.8, 4.2, 0), V(1.2, 4.2, 0)), False)
sketch11.addGeometry(Part.LineSegment(V(1.2, 4.2, 0), V(1.2, 3.5, 0)), False)
sketch11.addConstraint(Sketcher.Constraint("Coincident", 0, 2, 1, 1))
sketch11.addConstraint(Sketcher.Constraint("Coincident", 1, 2, 2, 1))
sketch11.addConstraint(Sketcher.Constraint("Coincident", 2, 2, 3, 1))
sketch11.addConstraint(Sketcher.Constraint("Coincident", 3, 2, 0, 1))
sketch11.addConstraint(Sketcher.Constraint("Horizontal", 0))
sketch11.addConstraint(Sketcher.Constraint("Vertical", 1))
sketch11.addConstraint(Sketcher.Constraint("Horizontal", 2))
sketch11.addConstraint(Sketcher.Constraint("Vertical", 3))
sketch11.addConstraint(Sketcher.Constraint("DistanceX", 0, 2, 0, 1, Q("6 mm")))
sketch11.addConstraint(Sketcher.Constraint("DistanceY", 1, 1, 1, 2, Q("0.7 mm")))
sketch11.addConstraint(Sketcher.Constraint("DistanceY", -1, 1, 0, 2, Q("3.5 mm")))
sketch11.addConstraint(Sketcher.Constraint("DistanceX", 0, 2, -1, 1, Q("4.817018 mm")))
pocket3 = body.newObject("PartDesign::Pocket", "Pocket002")
pocket3.Profile = sketch11
pocket3.Length = 0.5
pocket3.Reversed = True

sketch12 = body.newObject("Sketcher::SketchObject", "Sketch011")
sketch12.AttachmentSupport = (doc.getObject("XZ_Plane"), [""])
sketch12.MapMode = "FlatFace"
sketch12.AttachmentOffset = App.Placement(V(0, 0, -1.182982), App.Rotation())
sketch12.addGeometry(Part.LineSegment(V(-3, 3.6, 0), V(-3, 4.2, 0)), False)
sketch12.addGeometry(Part.LineSegment(V(-3, 4.2, 0), V(2, 4.2, 0)), False)
sketch12.addGeometry(Part.LineSegment(V(2, 4.2, 0), V(2, 3.6, 0)), False)
sketch12.addGeometry(Part.LineSegment(V(2, 3.6, 0), V(-3, 3.6, 0)), False)
sketch12.addConstraint(Sketcher.Constraint("Coincident", 0, 2, 1, 1))
sketch12.addConstraint(Sketcher.Constraint("Coincident", 1, 2, 2, 1))
sketch12.addConstraint(Sketcher.Constraint("Coincident", 2, 2, 3, 1))
sketch12.addConstraint(Sketcher.Constraint("Coincident", 3, 2, 0, 1))
sketch12.addConstraint(Sketcher.Constraint("Vertical", 0))
sketch12.addConstraint(Sketcher.Constraint("Horizontal", 1))
sketch12.addConstraint(Sketcher.Constraint("Vertical", 2))
sketch12.addConstraint(Sketcher.Constraint("Horizontal", 3))
sketch12.addConstraint(Sketcher.Constraint("DistanceX", 1, 1, 1, 2, Q("5 mm")))
sketch12.addConstraint(Sketcher.Constraint("DistanceY", -1, 1, 0, 2, Q("4.2 mm")))
sketch12.addConstraint(Sketcher.Constraint("DistanceY", 0, 1, 0, 2, Q("0.630285 mm")))
sketch12.addConstraint(Sketcher.Constraint("DistanceX", 0, 2, -1, 1, Q("3.03854 mm")))
pad9 = body.newObject("PartDesign::Pad", "Pad008")
pad9.Profile = sketch12
pad9.Length = 1
pad9.Reversed = True

sketch13 = body.newObject("Sketcher::SketchObject", "Sketch012")
sketch13.AttachmentSupport = (doc.getObject("XZ_Plane"), [""])
sketch13.MapMode = "FlatFace"
sketch13.AttachmentOffset = App.Placement(V(0, 0, 4.817018), App.Rotation())
sketch13.addGeometry(Part.LineSegment(V(-3, 4.2, 0), V(-3, 3.5, 0)), False)
sketch13.addGeometry(Part.LineSegment(V(-3, 3.5, 0), V(2, 3.5, 0)), False)
sketch13.addGeometry(Part.LineSegment(V(2, 3.5, 0), V(2, 4.2, 0)), False)
sketch13.addGeometry(Part.LineSegment(V(2, 4.2, 0), V(-3, 4.2, 0)), False)
sketch13.addConstraint(Sketcher.Constraint("Coincident", 0, 2, 1, 1))
sketch13.addConstraint(Sketcher.Constraint("Coincident", 1, 2, 2, 1))
sketch13.addConstraint(Sketcher.Constraint("Coincident", 2, 2, 3, 1))
sketch13.addConstraint(Sketcher.Constraint("Coincident", 3, 2, 0, 1))
sketch13.addConstraint(Sketcher.Constraint("Vertical", 0))
sketch13.addConstraint(Sketcher.Constraint("Horizontal", 1))
sketch13.addConstraint(Sketcher.Constraint("Vertical", 2))
sketch13.addConstraint(Sketcher.Constraint("Horizontal", 3))
sketch13.addConstraint(Sketcher.Constraint("DistanceX", 1, 1, 1, 2, Q("5 mm")))
sketch13.addConstraint(Sketcher.Constraint("DistanceY", 0, 2, 0, 1, Q("0.7 mm")))
sketch13.addConstraint(Sketcher.Constraint("DistanceY", -1, 1, 0, 2, Q("3.5 mm")))
sketch13.addConstraint(Sketcher.Constraint("DistanceX", 0, 2, -1, 1, Q("3.03854 mm")))
pad10 = body.newObject("PartDesign::Pad", "Pad009")
pad10.Profile = sketch13
pad10.Length = 1

sketch14 = body.newObject("Sketcher::SketchObject", "Sketch013")
sketch14.AttachmentSupport = (doc.getObject("XZ_Plane"), [""])
sketch14.MapMode = "FlatFace"
sketch14.AttachmentOffset = App.Placement(V(0, 0, -2.182982), App.Rotation())
sketch14.addGeometry(Part.LineSegment(V(-3, 3.6, 0), V(-3, 4.2, 0)), False)
sketch14.addGeometry(Part.LineSegment(V(-3, 4.2, 0), V(2, 4.2, 0)), False)
sketch14.addGeometry(Part.LineSegment(V(2, 4.2, 0), V(2, 3.6, 0)), False)
sketch14.addGeometry(Part.LineSegment(V(2, 3.6, 0), V(-3, 3.6, 0)), False)
sketch14.addConstraint(Sketcher.Constraint("Coincident", 0, 2, 1, 1))
sketch14.addConstraint(Sketcher.Constraint("Coincident", 1, 2, 2, 1))
sketch14.addConstraint(Sketcher.Constraint("Coincident", 2, 2, 3, 1))
sketch14.addConstraint(Sketcher.Constraint("Coincident", 3, 2, 0, 1))
sketch14.addConstraint(Sketcher.Constraint("Vertical", 0))
sketch14.addConstraint(Sketcher.Constraint("Horizontal", 1))
sketch14.addConstraint(Sketcher.Constraint("Vertical", 2))
sketch14.addConstraint(Sketcher.Constraint("Horizontal", 3))
sketch14.addConstraint(Sketcher.Constraint("DistanceX", 1, 1, 1, 2, Q("5 mm")))
sketch14.addConstraint(Sketcher.Constraint("DistanceY", -1, 1, 0, 2, Q("4.2 mm")))
sketch14.addConstraint(Sketcher.Constraint("DistanceY", 0, 1, 0, 2, Q("0.630285 mm")))
sketch14.addConstraint(Sketcher.Constraint("DistanceX", 0, 2, -1, 1, Q("3.03854 mm")))
pocket4 = body.newObject("PartDesign::Pocket", "Pocket003")
pocket4.Profile = sketch14
pocket4.Length = 1
pocket4.Reversed = True

sketch15 = body.newObject("Sketcher::SketchObject", "Sketch014")
sketch15.AttachmentSupport = (doc.getObject("XZ_Plane"), [""])
sketch15.MapMode = "FlatFace"
sketch15.AttachmentOffset = App.Placement(V(0, 0, 5.817018), App.Rotation())
sketch15.addGeometry(Part.LineSegment(V(-3, 4.2, 0), V(-3, 3.5, 0)), False)
sketch15.addGeometry(Part.LineSegment(V(-3, 3.5, 0), V(2, 3.5, 0)), False)
sketch15.addGeometry(Part.LineSegment(V(2, 3.5, 0), V(2, 4.2, 0)), False)
sketch15.addGeometry(Part.LineSegment(V(2, 4.2, 0), V(-3, 4.2, 0)), False)
sketch15.addConstraint(Sketcher.Constraint("Coincident", 0, 2, 1, 1))
sketch15.addConstraint(Sketcher.Constraint("Coincident", 1, 2, 2, 1))
sketch15.addConstraint(Sketcher.Constraint("Coincident", 2, 2, 3, 1))
sketch15.addConstraint(Sketcher.Constraint("Coincident", 3, 2, 0, 1))
sketch15.addConstraint(Sketcher.Constraint("Vertical", 0))
sketch15.addConstraint(Sketcher.Constraint("Horizontal", 1))
sketch15.addConstraint(Sketcher.Constraint("Vertical", 2))
sketch15.addConstraint(Sketcher.Constraint("Horizontal", 3))
sketch15.addConstraint(Sketcher.Constraint("DistanceX", 1, 1, 1, 2, Q("5 mm")))
sketch15.addConstraint(Sketcher.Constraint("DistanceY", 0, 2, 0, 1, Q("0.7 mm")))
sketch15.addConstraint(Sketcher.Constraint("DistanceY", -1, 1, 0, 2, Q("3.5 mm")))
sketch15.addConstraint(Sketcher.Constraint("DistanceX", 0, 2, -1, 1, Q("3.03854 mm")))
pocket5 = body.newObject("PartDesign::Pocket", "Pocket004")
pocket5.Profile = sketch15
pocket5.Length = 1

doc.recompute()
